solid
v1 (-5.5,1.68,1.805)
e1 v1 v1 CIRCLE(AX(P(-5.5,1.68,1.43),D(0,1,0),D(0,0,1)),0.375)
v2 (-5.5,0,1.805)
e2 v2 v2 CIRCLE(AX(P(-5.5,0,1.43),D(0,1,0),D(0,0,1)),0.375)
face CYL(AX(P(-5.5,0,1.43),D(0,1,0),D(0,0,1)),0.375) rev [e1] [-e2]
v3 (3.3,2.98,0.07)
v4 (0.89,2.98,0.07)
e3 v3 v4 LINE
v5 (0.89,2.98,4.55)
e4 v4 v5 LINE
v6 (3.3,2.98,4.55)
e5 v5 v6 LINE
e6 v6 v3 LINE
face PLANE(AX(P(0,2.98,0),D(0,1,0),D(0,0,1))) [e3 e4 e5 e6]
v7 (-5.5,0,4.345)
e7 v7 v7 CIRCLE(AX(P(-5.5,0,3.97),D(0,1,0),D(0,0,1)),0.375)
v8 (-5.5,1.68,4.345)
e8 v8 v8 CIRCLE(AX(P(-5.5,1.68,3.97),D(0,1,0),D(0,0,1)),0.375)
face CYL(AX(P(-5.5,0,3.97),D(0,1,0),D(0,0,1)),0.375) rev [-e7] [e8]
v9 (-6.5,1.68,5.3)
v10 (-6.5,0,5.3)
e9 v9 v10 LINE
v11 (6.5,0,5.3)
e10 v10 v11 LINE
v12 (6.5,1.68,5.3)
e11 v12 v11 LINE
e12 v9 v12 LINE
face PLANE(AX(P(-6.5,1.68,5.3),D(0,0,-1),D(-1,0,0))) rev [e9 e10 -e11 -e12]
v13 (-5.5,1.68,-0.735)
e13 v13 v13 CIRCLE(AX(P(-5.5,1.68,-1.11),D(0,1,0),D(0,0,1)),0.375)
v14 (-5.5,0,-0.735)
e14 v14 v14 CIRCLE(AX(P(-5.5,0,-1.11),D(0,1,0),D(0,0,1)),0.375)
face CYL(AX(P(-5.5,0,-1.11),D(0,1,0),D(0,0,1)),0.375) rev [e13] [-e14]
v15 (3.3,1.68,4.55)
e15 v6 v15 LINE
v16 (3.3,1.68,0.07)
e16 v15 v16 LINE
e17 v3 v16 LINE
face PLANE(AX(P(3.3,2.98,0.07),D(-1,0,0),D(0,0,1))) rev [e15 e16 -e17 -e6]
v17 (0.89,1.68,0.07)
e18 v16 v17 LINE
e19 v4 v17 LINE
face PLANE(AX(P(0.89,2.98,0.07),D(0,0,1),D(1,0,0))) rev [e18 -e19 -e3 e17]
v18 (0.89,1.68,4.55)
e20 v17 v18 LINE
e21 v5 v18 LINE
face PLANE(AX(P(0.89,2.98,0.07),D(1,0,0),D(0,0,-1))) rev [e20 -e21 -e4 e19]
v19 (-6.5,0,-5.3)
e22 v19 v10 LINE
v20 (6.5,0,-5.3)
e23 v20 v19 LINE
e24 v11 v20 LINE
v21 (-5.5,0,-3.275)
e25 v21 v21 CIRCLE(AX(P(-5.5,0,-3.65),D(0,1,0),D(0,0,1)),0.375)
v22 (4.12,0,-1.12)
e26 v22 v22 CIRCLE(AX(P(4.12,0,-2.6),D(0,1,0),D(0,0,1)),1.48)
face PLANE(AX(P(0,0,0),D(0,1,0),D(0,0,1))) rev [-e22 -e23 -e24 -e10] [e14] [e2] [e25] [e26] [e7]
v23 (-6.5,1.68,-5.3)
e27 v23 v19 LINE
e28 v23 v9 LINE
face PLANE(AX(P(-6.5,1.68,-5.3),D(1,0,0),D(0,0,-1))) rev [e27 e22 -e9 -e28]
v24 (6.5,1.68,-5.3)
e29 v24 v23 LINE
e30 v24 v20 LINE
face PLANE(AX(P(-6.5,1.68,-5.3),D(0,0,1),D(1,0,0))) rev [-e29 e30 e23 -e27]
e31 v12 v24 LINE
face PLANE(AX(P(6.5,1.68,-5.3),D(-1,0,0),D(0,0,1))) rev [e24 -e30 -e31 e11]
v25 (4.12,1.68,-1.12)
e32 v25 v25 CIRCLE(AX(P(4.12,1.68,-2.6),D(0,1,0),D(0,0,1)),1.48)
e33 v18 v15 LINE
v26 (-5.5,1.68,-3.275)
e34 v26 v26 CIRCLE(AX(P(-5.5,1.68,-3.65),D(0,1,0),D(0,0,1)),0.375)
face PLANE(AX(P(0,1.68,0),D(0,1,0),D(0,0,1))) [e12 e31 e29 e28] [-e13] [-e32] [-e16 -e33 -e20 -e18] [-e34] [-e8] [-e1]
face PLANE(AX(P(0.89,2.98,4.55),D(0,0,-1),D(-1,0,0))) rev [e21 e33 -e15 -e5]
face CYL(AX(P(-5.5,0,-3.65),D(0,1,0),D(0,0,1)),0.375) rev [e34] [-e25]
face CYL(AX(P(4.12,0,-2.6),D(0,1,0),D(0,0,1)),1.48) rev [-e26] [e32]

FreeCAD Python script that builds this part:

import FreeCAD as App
import Part
import Sketcher
from FreeCAD import Vector
Q = App.Units.Quantity

doc = App.newDocument("Part")
body = doc.addObject("PartDesign::Body", "Body")

# Sketch on XZ plane
sketch1 = doc.addObject("Sketcher::SketchObject", "Sketch")
body.addObject(sketch1)
sketch1.AttachmentSupport = (doc.XZ_Plane, [""])
sketch1.MapMode = "FlatFace"
sketch1.addGeometry(Part.LineSegment(Vector(-6, -5, 0), Vector(-6, 5, 0)), False)
sketch1.addGeometry(Part.LineSegment(Vector(-6, 5, 0), Vector(6, 5, 0)), False)
sketch1.addGeometry(Part.LineSegment(Vector(6, 5, 0), Vector(6, -5, 0)), False)
sketch1.addGeometry(Part.LineSegment(Vector(6, -5, 0), Vector(-6, -5, 0)), False)
sketch1.addConstraint(Sketcher.Constraint("Coincident", 0, 2, 1, 1))
sketch1.addConstraint(Sketcher.Constraint("Coincident", 1, 2, 2, 1))
sketch1.addConstraint(Sketcher.Constraint("Coincident", 2, 2, 3, 1))
sketch1.addConstraint(Sketcher.Constraint("Coincident", 3, 2, 0, 1))
sketch1.addConstraint(Sketcher.Constraint("Vertical", 0))
sketch1.addConstraint(Sketcher.Constraint("Horizontal", 1))
sketch1.addConstraint(Sketcher.Constraint("Vertical", 2))
sketch1.addConstraint(Sketcher.Constraint("Horizontal", 3))
sketch1.addConstraint(Sketcher.Constraint("Symmetric", 0, 2, 2, 2, -1, 1))
sketch1.addConstraint(Sketcher.Constraint("DistanceX", 1, 1, 1, 2, Q("13 mm")))
sketch1.addConstraint(Sketcher.Constraint("DistanceY", 0, 1, 0, 2, Q("10.6 mm")))
pad1 = doc.addObject("PartDesign::Pad", "Pad")
body.addObject(pad1)
pad1.Profile = sketch1
pad1.Length = 1.68
pad1.Reversed = True

# Sketch on XZ plane
sketch2 = doc.addObject("Sketcher::SketchObject", "Sketch001")
body.addObject(sketch2)
sketch2.AttachmentSupport = (doc.XZ_Plane, [""])
sketch2.MapMode = "FlatFace"
sketch2.AttachmentOffset = App.Placement(Vector(0, 0, -1.68), App.Rotation())
sketch2.addGeometry(Part.LineSegment(Vector(0.9, 0.1, 0), Vector(0.9, 4.5, 0)), False)
sketch2.addGeometry(Part.LineSegment(Vector(0.9, 4.5, 0), Vector(3.3, 4.5, 0)), False)
sketch2.addGeometry(Part.LineSegment(Vector(3.3, 4.5, 0), Vector(3.3, 0.1, 0)), False)
sketch2.addGeometry(Part.LineSegment(Vector(3.3, 0.1, 0), Vector(0.9, 0.1, 0)), False)
sketch2.addConstraint(Sketcher.Constraint("Coincident", 0, 2, 1, 1))
sketch2.addConstraint(Sketcher.Constraint("Coincident", 1, 2, 2, 1))
sketch2.addConstraint(Sketcher.Constraint("Coincident", 2, 2, 3, 1))
sketch2.addConstraint(Sketcher.Constraint("Coincident", 3, 2, 0, 1))
sketch2.addConstraint(Sketcher.Constraint("Vertical", 0))
sketch2.addConstraint(Sketcher.Constraint("Horizontal", 1))
sketch2.addConstraint(Sketcher.Constraint("Vertical", 2))
sketch2.addConstraint(Sketcher.Constraint("Horizontal", 3))
sketch2.addConstraint(Sketcher.Constraint("DistanceX", 1, 1, 1, 2, Q("2.41 mm")))
sketch2.addConstraint(Sketcher.Constraint("DistanceY", 0, 1, 0, 2, Q("4.48 mm")))
sketch2.addConstraint(Sketcher.Constraint("DistanceX", -1, 1, 1, 2, Q("3.3 mm")))
sketch2.addConstraint(Sketcher.Constraint("DistanceY", -1, 1, 0, 2, Q("4.55 mm")))
pad2 = doc.addObject("PartDesign::Pad", "Pad001")
body.addObject(pad2)
pad2.Profile = sketch2
pad2.Length = 1.3
pad2.Reversed = True

# Sketch on XZ plane
sketch3 = doc.addObject("Sketcher::SketchObject", "Sketch002")
body.addObject(sketch3)
sketch3.AttachmentSupport = (doc.XZ_Plane, [""])
sketch3.MapMode = "FlatFace"
sketch3.AttachmentOffset = App.Placement(Vector(0, 0, -1.68), App.Rotation())
sketch3.addGeometry(Part.Circle(Vector(4.1, -2.6, 0), Vector(0, 0, 1), 1.5), False)
sketch3.addConstraint(Sketcher.Constraint("Diameter", 0, Q("2.96 mm")))
sketch3.addConstraint(Sketcher.Constraint("DistanceY", 0, 3, -1, 1, Q("2.6 mm")))
sketch3.addConstraint(Sketcher.Constraint("DistanceX", -1, 1, 0, 3, Q("4.12 mm")))
pocket1 = doc.addObject("PartDesign::Pocket", "Pocket")
body.addObject(pocket1)
pocket1.Profile = sketch3
pocket1.Type = "ThroughAll"
pocket1.Reversed = True

# Sketch on XZ plane
sketch4 = doc.addObject("Sketcher::SketchObject", "Sketch003")
body.addObject(sketch4)
sketch4.AttachmentSupport = (doc.XZ_Plane, [""])
sketch4.MapMode = "FlatFace"
sketch4.AttachmentOffset = App.Placement(Vector(0, 0, -1.68), App.Rotation())
sketch4.addGeometry(Part.Circle(Vector(-5.5, -3.65, 0), Vector(0, 0, 1), 0.38), False)
sketch4.addGeometry(Part.Circle(Vector(-5.5, -1.11, 0), Vector(0, 0, 1), 0.38), False)
sketch4.addGeometry(Part.Circle(Vector(-5.5, 1.43, 0), Vector(0, 0, 1), 0.38), False)
sketch4.addGeometry(Part.Circle(Vector(-5.5, 3.97, 0), Vector(0, 0, 1), 0.38), False)
sketch4.addConstraint(Sketcher.Constraint("Equal", 0, 1))
sketch4.addConstraint(Sketcher.Constraint("Equal", 1, 2))
sketch4.addConstraint(Sketcher.Constraint("Equal", 2, 3))
sketch4.addConstraint(Sketcher.Constraint("Vertical", 0, 3, 1, 3))
sketch4.addConstraint(Sketcher.Constraint("Vertical", 1, 3, 2, 3))
sketch4.addConstraint(Sketcher.Constraint("Vertical", 2, 3, 3, 3))
sketch4.addConstraint(Sketcher.Constraint("Diameter", 0, Q("0.75 mm")))
sketch4.addConstraint(Sketcher.Constraint("DistanceX", 0, 3, -1, 1, Q("5.5 mm")))
sketch4.addConstraint(Sketcher.Constraint("DistanceY", 0, 3, -1, 1, Q("3.65 mm")))
sketch4.addConstraint(Sketcher.Constraint("DistanceY", 1, 3, -1, 1, Q("1.11 mm")))
sketch4.addConstraint(Sketcher.Constraint("DistanceY", -1, 1, 2, 3, Q("1.43 mm")))
sketch4.addConstraint(Sketcher.Constraint("DistanceY", -1, 1, 3, 3, Q("3.97 mm")))
pocket2 = doc.addObject("PartDesign::Pocket", "Pocket001")
body.addObject(pocket2)
pocket2.Profile = sketch4
pocket2.Type = "ThroughAll"
pocket2.Reversed = True

doc.recompute()
